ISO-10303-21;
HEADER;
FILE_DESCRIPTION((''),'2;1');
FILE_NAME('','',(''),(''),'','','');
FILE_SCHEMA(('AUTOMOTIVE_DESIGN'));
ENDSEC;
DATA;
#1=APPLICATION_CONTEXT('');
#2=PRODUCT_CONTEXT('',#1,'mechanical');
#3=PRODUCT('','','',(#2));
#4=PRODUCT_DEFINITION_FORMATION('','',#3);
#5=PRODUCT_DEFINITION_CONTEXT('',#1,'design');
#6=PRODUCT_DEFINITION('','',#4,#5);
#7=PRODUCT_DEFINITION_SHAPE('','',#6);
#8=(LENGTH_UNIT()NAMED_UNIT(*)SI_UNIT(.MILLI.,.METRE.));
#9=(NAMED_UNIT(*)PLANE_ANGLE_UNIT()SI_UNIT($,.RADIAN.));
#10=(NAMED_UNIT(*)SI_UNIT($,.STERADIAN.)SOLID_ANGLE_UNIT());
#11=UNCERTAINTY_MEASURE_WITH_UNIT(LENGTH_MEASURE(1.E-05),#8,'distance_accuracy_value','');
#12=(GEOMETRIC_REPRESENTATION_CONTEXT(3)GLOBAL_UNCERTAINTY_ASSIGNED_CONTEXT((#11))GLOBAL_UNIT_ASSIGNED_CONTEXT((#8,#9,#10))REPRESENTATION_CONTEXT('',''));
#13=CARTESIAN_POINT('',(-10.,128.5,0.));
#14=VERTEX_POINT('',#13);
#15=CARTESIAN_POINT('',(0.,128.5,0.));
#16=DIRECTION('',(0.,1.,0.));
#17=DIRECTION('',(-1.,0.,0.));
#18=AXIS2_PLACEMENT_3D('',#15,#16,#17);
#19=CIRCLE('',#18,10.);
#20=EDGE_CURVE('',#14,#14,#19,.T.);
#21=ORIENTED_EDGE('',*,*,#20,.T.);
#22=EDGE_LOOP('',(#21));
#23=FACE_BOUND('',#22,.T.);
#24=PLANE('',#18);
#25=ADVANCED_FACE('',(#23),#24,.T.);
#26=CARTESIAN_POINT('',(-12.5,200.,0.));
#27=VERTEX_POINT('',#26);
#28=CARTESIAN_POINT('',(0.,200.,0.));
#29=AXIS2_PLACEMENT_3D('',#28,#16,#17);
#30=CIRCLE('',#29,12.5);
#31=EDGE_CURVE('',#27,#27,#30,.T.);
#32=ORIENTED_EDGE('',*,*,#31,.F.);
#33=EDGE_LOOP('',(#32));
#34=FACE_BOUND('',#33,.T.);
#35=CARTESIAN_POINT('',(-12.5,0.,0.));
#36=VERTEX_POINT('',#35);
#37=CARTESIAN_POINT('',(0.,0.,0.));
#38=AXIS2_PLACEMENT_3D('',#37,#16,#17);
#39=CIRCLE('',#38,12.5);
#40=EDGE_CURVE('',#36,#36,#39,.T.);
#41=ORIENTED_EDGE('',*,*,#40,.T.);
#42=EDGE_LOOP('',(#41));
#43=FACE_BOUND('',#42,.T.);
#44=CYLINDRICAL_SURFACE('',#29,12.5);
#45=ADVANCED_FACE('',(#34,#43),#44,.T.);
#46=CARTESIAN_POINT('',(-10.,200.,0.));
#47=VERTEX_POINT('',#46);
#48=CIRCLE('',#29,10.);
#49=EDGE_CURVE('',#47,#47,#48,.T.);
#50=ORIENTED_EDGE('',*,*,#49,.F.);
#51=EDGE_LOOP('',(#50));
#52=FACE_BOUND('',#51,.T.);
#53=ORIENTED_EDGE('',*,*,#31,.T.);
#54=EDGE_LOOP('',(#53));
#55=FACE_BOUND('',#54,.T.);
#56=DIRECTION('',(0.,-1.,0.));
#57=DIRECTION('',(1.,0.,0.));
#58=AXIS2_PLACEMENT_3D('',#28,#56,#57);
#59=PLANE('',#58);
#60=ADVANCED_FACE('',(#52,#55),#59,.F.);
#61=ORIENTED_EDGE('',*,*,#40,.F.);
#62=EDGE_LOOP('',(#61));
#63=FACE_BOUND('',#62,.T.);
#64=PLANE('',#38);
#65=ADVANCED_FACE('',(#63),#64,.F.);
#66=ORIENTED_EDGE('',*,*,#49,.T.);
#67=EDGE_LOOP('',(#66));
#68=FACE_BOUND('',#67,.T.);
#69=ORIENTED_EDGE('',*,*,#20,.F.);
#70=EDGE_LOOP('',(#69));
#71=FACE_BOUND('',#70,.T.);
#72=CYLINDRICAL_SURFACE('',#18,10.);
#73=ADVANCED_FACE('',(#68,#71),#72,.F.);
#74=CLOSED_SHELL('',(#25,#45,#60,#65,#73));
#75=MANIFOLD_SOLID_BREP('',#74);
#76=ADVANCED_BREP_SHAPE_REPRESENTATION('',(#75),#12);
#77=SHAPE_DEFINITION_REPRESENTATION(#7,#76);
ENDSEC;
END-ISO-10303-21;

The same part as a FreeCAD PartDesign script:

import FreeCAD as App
import Part
import Sketcher

doc = App.newDocument("Part")
body = doc.addObject("PartDesign::Body", "Body")

sketch1 = body.newObject("Sketcher::SketchObject", "Sketch")
sketch1.AttachmentSupport = (doc.getObject("XY_Plane"), [""])
sketch1.MapMode = "FlatFace"
sketch1.addGeometry([
    Part.LineSegment(App.Vector(0, 200, 0), App.Vector(0, 0, 0)),
    Part.LineSegment(App.Vector(0, 0, 0), App.Vector(12.5, 0, 0)),
    Part.LineSegment(App.Vector(12.5, 0, 0), App.Vector(12.5, 200, 0)),
    Part.LineSegment(App.Vector(12.5, 200, 0), App.Vector(0, 200, 0)),
], False)
sketch1.addConstraint([
    Sketcher.Constraint("Coincident", 0, 2, 1, 1),
    Sketcher.Constraint("Coincident", 1, 2, 2, 1),
    Sketcher.Constraint("Coincident", 2, 2, 3, 1),
    Sketcher.Constraint("Coincident", 3, 2, 0, 1),
    Sketcher.Constraint("Vertical", 0),
    Sketcher.Constraint("Horizontal", 1),
    Sketcher.Constraint("Vertical", 2),
    Sketcher.Constraint("Horizontal", 3),
    Sketcher.Constraint("Coincident", 0, 2, -1, 1),
    Sketcher.Constraint("DistanceY", 0, 2, 0, 1, 200.0),
    Sketcher.Constraint("DistanceX", 1, 1, 1, 2, 12.5),
])
revolution = body.newObject("PartDesign::Revolution", "Revolution")
revolution.Profile = sketch1
revolution.ReferenceAxis = (sketch1, ["V_Axis"])
revolution.Angle = 360

sketch2 = body.newObject("Sketcher::SketchObject", "Sketch001")
sketch2.AttachmentSupport = (doc.getObject("XZ_Plane"), [""])
sketch2.MapMode = "FlatFace"
sketch2.AttachmentOffset = App.Placement(App.Vector(0, 0, -200), App.Rotation())
sketch2.addGeometry(Part.Circle(App.Vector(0, 0, 0), App.Vector(0, 0, 1), 10), False)
sketch2.addConstraint([
    Sketcher.Constraint("Coincident", 0, 3, -1, 1),
    Sketcher.Constraint("Diameter", 0, 20.0),
])
pocket1 = body.newObject("PartDesign::Pocket", "Pocket")
pocket1.Profile = sketch2
pocket1.Length = 71.5
pocket1.Reversed = True

doc.recompute()
